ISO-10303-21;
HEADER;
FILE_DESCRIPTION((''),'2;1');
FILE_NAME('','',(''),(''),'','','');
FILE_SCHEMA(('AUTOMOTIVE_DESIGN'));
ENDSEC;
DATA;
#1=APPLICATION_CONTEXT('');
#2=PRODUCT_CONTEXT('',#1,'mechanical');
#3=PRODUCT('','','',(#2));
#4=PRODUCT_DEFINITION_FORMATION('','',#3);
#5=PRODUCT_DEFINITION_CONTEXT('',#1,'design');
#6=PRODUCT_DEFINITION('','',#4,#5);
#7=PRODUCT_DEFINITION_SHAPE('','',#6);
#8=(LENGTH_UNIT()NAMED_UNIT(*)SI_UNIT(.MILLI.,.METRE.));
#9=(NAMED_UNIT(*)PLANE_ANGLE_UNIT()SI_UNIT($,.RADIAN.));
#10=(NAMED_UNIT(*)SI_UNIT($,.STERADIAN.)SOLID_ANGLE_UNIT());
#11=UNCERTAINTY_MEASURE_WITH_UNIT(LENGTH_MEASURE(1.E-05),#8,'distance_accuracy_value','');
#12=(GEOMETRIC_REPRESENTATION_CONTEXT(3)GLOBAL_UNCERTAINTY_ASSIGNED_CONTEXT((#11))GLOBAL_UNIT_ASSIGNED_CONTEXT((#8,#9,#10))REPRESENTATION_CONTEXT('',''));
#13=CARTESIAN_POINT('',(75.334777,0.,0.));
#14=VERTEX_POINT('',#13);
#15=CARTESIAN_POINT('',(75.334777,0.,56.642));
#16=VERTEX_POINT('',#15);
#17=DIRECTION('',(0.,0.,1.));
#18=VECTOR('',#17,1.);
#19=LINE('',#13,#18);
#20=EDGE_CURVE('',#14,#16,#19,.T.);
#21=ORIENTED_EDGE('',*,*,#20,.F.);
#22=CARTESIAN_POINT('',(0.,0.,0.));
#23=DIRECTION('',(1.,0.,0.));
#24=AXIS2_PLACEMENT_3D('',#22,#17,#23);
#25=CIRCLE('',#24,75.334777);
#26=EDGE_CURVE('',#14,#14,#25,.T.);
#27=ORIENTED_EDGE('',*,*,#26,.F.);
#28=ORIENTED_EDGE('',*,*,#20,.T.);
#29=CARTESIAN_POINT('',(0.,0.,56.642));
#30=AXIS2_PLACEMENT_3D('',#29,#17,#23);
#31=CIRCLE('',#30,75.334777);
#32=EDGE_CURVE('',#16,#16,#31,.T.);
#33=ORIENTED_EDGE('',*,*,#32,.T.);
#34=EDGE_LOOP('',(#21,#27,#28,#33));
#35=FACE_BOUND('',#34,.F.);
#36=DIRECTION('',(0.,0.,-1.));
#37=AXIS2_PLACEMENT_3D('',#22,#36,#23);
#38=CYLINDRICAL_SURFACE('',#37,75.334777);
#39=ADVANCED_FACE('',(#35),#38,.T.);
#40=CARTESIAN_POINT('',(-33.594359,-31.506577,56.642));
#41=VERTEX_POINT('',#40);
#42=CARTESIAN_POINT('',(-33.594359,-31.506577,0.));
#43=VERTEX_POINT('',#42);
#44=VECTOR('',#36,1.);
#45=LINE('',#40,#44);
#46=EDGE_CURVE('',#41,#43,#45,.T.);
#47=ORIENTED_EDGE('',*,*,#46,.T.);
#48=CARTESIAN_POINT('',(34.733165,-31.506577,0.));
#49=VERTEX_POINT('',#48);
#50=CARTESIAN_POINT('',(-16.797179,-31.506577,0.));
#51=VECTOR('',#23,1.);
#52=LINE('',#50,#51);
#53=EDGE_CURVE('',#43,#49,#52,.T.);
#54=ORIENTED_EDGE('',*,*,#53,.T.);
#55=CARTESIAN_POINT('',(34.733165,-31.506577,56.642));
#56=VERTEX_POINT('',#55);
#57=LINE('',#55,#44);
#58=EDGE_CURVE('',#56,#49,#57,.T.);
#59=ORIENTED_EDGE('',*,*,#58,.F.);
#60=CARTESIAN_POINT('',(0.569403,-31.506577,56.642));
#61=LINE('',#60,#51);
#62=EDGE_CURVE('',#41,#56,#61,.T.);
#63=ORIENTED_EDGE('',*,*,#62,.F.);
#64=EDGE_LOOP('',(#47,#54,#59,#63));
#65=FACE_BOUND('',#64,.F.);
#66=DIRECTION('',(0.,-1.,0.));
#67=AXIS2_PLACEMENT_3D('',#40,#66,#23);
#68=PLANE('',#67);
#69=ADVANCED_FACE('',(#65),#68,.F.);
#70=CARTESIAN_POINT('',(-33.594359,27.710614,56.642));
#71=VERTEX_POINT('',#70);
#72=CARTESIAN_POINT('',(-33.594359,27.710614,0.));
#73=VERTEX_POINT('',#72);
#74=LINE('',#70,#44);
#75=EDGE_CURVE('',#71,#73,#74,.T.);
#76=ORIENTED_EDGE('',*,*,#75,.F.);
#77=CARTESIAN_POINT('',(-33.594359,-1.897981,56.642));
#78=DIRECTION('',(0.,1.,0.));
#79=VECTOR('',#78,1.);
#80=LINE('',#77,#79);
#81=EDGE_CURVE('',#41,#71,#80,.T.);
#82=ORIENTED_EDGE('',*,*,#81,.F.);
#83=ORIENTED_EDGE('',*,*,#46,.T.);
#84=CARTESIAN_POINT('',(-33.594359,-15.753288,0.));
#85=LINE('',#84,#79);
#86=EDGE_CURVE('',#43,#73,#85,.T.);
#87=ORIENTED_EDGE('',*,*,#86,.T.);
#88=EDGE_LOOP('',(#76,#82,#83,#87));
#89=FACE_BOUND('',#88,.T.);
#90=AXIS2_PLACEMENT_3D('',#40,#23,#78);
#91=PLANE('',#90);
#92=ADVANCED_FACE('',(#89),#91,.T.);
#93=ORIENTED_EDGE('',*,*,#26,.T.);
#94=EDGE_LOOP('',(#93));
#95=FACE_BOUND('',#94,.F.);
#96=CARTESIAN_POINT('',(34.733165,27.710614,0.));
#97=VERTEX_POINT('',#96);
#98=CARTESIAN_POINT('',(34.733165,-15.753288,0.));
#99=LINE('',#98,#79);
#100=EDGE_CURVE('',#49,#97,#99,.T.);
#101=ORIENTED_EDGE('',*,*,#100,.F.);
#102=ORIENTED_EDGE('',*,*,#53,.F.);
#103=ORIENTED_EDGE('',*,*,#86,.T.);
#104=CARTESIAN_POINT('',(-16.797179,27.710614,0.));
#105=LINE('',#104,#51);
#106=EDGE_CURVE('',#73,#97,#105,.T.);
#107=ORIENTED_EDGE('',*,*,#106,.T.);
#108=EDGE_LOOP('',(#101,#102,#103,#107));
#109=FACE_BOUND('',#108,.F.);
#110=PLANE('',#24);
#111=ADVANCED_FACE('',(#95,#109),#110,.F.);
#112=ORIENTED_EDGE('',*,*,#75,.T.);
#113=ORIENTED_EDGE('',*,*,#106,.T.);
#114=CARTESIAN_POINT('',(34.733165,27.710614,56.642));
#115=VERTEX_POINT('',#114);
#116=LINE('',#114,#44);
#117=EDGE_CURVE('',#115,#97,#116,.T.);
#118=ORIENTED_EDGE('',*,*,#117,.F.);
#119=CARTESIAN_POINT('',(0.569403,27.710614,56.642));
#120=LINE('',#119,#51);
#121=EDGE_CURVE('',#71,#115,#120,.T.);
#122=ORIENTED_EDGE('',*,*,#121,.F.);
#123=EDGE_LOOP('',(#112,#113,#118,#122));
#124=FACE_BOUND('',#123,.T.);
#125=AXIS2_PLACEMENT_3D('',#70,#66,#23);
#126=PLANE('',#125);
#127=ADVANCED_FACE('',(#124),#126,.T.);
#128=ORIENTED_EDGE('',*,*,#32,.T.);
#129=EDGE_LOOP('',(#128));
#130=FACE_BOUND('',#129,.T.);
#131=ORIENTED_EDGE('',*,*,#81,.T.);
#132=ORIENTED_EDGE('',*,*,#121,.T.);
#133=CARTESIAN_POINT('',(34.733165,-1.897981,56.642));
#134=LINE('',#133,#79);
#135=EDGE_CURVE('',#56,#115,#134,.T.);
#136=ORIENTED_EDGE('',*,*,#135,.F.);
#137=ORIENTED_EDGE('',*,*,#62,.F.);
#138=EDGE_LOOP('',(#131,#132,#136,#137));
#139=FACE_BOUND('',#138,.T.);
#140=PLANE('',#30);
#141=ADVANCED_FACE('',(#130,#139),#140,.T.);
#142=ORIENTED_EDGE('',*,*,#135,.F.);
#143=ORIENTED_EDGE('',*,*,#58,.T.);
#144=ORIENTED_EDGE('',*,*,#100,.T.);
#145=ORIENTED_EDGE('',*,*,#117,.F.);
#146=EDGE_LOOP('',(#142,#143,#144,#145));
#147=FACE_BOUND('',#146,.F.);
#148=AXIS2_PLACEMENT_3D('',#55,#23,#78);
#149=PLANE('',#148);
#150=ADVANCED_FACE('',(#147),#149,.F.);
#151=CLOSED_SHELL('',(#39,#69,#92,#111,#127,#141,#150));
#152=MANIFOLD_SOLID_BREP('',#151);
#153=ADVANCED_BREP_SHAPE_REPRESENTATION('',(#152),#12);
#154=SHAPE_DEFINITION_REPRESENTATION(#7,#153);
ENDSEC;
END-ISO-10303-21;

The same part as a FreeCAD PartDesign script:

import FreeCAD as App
import Part
import Sketcher
from FreeCAD import Vector
Q = App.Units.Quantity


def add_polygon(sketch, points):
    """Adds a closed chain of lines whose ends are joined by coincident constraints."""
    first, n = sketch.GeometryCount, len(points)
    for a, b in zip(points, points[1:] + points[:1]):
        sketch.addGeometry(Part.LineSegment(App.Vector(*a, 0), App.Vector(*b, 0)), False)
    for i in range(n):
        sketch.addConstraint(Sketcher.Constraint("Coincident", first + i, 2, first + (i + 1) % n, 1))

doc = App.newDocument("Part")
body = doc.addObject("PartDesign::Body", "Body")

# Sketch on XY plane
sketch1 = body.newObject("Sketcher::SketchObject", "Sketch")
sketch1.AttachmentSupport = (doc.getObject("XY_Plane"), [""])
sketch1.MapMode = "FlatFace"
sketch1.addGeometry(Part.Circle(Vector(0, 0, 0), Vector(0, 0, 1), 75.334777), False)
sketch1.addConstraint([
    Sketcher.Constraint("Coincident", 0, 3, -1, 1),
    Sketcher.Constraint("Diameter", 0, Q("150.669554 mm")),
])
pad1 = body.newObject("PartDesign::Pad", "Pad")
pad1.Profile = sketch1
pad1.Length = Q("2.23 in")

# Sketch on XY plane
sketch2 = body.newObject("Sketcher::SketchObject", "Sketch001")
sketch2.AttachmentSupport = (doc.getObject("XY_Plane"), [""])
sketch2.MapMode = "FlatFace"
sketch2.AttachmentOffset = App.Placement(Vector(0, 0, 2.23 * 25.4), App.Rotation())
add_polygon(sketch2, [(-33.594359, 27.710614), (-33.594359, -31.506577), (34.733165, -31.506577), (34.733165, 27.710614)])  # lines 0-3
sketch2.addConstraint([
    Sketcher.Constraint("Vertical", 0),
    Sketcher.Constraint("Horizontal", 1),
    Sketcher.Constraint("Vertical", 2),
    Sketcher.Constraint("Horizontal", 3),
    Sketcher.Constraint("DistanceY", 0, 2, 0, 1, Q("59.217191 mm")),
    Sketcher.Constraint("DistanceX", 1, 1, 1, 2, Q("68.327524 mm")),
    Sketcher.Constraint("DistanceX", 0, 2, -1, 1, Q("33.594359 mm")),
    Sketcher.Constraint("DistanceY", 0, 2, -1, 1, Q("31.506577 mm")),
])
pocket1 = body.newObject("PartDesign::Pocket", "Pocket")
pocket1.Profile = sketch2
pocket1.Length = Q("3.23 in")

doc.recompute()
